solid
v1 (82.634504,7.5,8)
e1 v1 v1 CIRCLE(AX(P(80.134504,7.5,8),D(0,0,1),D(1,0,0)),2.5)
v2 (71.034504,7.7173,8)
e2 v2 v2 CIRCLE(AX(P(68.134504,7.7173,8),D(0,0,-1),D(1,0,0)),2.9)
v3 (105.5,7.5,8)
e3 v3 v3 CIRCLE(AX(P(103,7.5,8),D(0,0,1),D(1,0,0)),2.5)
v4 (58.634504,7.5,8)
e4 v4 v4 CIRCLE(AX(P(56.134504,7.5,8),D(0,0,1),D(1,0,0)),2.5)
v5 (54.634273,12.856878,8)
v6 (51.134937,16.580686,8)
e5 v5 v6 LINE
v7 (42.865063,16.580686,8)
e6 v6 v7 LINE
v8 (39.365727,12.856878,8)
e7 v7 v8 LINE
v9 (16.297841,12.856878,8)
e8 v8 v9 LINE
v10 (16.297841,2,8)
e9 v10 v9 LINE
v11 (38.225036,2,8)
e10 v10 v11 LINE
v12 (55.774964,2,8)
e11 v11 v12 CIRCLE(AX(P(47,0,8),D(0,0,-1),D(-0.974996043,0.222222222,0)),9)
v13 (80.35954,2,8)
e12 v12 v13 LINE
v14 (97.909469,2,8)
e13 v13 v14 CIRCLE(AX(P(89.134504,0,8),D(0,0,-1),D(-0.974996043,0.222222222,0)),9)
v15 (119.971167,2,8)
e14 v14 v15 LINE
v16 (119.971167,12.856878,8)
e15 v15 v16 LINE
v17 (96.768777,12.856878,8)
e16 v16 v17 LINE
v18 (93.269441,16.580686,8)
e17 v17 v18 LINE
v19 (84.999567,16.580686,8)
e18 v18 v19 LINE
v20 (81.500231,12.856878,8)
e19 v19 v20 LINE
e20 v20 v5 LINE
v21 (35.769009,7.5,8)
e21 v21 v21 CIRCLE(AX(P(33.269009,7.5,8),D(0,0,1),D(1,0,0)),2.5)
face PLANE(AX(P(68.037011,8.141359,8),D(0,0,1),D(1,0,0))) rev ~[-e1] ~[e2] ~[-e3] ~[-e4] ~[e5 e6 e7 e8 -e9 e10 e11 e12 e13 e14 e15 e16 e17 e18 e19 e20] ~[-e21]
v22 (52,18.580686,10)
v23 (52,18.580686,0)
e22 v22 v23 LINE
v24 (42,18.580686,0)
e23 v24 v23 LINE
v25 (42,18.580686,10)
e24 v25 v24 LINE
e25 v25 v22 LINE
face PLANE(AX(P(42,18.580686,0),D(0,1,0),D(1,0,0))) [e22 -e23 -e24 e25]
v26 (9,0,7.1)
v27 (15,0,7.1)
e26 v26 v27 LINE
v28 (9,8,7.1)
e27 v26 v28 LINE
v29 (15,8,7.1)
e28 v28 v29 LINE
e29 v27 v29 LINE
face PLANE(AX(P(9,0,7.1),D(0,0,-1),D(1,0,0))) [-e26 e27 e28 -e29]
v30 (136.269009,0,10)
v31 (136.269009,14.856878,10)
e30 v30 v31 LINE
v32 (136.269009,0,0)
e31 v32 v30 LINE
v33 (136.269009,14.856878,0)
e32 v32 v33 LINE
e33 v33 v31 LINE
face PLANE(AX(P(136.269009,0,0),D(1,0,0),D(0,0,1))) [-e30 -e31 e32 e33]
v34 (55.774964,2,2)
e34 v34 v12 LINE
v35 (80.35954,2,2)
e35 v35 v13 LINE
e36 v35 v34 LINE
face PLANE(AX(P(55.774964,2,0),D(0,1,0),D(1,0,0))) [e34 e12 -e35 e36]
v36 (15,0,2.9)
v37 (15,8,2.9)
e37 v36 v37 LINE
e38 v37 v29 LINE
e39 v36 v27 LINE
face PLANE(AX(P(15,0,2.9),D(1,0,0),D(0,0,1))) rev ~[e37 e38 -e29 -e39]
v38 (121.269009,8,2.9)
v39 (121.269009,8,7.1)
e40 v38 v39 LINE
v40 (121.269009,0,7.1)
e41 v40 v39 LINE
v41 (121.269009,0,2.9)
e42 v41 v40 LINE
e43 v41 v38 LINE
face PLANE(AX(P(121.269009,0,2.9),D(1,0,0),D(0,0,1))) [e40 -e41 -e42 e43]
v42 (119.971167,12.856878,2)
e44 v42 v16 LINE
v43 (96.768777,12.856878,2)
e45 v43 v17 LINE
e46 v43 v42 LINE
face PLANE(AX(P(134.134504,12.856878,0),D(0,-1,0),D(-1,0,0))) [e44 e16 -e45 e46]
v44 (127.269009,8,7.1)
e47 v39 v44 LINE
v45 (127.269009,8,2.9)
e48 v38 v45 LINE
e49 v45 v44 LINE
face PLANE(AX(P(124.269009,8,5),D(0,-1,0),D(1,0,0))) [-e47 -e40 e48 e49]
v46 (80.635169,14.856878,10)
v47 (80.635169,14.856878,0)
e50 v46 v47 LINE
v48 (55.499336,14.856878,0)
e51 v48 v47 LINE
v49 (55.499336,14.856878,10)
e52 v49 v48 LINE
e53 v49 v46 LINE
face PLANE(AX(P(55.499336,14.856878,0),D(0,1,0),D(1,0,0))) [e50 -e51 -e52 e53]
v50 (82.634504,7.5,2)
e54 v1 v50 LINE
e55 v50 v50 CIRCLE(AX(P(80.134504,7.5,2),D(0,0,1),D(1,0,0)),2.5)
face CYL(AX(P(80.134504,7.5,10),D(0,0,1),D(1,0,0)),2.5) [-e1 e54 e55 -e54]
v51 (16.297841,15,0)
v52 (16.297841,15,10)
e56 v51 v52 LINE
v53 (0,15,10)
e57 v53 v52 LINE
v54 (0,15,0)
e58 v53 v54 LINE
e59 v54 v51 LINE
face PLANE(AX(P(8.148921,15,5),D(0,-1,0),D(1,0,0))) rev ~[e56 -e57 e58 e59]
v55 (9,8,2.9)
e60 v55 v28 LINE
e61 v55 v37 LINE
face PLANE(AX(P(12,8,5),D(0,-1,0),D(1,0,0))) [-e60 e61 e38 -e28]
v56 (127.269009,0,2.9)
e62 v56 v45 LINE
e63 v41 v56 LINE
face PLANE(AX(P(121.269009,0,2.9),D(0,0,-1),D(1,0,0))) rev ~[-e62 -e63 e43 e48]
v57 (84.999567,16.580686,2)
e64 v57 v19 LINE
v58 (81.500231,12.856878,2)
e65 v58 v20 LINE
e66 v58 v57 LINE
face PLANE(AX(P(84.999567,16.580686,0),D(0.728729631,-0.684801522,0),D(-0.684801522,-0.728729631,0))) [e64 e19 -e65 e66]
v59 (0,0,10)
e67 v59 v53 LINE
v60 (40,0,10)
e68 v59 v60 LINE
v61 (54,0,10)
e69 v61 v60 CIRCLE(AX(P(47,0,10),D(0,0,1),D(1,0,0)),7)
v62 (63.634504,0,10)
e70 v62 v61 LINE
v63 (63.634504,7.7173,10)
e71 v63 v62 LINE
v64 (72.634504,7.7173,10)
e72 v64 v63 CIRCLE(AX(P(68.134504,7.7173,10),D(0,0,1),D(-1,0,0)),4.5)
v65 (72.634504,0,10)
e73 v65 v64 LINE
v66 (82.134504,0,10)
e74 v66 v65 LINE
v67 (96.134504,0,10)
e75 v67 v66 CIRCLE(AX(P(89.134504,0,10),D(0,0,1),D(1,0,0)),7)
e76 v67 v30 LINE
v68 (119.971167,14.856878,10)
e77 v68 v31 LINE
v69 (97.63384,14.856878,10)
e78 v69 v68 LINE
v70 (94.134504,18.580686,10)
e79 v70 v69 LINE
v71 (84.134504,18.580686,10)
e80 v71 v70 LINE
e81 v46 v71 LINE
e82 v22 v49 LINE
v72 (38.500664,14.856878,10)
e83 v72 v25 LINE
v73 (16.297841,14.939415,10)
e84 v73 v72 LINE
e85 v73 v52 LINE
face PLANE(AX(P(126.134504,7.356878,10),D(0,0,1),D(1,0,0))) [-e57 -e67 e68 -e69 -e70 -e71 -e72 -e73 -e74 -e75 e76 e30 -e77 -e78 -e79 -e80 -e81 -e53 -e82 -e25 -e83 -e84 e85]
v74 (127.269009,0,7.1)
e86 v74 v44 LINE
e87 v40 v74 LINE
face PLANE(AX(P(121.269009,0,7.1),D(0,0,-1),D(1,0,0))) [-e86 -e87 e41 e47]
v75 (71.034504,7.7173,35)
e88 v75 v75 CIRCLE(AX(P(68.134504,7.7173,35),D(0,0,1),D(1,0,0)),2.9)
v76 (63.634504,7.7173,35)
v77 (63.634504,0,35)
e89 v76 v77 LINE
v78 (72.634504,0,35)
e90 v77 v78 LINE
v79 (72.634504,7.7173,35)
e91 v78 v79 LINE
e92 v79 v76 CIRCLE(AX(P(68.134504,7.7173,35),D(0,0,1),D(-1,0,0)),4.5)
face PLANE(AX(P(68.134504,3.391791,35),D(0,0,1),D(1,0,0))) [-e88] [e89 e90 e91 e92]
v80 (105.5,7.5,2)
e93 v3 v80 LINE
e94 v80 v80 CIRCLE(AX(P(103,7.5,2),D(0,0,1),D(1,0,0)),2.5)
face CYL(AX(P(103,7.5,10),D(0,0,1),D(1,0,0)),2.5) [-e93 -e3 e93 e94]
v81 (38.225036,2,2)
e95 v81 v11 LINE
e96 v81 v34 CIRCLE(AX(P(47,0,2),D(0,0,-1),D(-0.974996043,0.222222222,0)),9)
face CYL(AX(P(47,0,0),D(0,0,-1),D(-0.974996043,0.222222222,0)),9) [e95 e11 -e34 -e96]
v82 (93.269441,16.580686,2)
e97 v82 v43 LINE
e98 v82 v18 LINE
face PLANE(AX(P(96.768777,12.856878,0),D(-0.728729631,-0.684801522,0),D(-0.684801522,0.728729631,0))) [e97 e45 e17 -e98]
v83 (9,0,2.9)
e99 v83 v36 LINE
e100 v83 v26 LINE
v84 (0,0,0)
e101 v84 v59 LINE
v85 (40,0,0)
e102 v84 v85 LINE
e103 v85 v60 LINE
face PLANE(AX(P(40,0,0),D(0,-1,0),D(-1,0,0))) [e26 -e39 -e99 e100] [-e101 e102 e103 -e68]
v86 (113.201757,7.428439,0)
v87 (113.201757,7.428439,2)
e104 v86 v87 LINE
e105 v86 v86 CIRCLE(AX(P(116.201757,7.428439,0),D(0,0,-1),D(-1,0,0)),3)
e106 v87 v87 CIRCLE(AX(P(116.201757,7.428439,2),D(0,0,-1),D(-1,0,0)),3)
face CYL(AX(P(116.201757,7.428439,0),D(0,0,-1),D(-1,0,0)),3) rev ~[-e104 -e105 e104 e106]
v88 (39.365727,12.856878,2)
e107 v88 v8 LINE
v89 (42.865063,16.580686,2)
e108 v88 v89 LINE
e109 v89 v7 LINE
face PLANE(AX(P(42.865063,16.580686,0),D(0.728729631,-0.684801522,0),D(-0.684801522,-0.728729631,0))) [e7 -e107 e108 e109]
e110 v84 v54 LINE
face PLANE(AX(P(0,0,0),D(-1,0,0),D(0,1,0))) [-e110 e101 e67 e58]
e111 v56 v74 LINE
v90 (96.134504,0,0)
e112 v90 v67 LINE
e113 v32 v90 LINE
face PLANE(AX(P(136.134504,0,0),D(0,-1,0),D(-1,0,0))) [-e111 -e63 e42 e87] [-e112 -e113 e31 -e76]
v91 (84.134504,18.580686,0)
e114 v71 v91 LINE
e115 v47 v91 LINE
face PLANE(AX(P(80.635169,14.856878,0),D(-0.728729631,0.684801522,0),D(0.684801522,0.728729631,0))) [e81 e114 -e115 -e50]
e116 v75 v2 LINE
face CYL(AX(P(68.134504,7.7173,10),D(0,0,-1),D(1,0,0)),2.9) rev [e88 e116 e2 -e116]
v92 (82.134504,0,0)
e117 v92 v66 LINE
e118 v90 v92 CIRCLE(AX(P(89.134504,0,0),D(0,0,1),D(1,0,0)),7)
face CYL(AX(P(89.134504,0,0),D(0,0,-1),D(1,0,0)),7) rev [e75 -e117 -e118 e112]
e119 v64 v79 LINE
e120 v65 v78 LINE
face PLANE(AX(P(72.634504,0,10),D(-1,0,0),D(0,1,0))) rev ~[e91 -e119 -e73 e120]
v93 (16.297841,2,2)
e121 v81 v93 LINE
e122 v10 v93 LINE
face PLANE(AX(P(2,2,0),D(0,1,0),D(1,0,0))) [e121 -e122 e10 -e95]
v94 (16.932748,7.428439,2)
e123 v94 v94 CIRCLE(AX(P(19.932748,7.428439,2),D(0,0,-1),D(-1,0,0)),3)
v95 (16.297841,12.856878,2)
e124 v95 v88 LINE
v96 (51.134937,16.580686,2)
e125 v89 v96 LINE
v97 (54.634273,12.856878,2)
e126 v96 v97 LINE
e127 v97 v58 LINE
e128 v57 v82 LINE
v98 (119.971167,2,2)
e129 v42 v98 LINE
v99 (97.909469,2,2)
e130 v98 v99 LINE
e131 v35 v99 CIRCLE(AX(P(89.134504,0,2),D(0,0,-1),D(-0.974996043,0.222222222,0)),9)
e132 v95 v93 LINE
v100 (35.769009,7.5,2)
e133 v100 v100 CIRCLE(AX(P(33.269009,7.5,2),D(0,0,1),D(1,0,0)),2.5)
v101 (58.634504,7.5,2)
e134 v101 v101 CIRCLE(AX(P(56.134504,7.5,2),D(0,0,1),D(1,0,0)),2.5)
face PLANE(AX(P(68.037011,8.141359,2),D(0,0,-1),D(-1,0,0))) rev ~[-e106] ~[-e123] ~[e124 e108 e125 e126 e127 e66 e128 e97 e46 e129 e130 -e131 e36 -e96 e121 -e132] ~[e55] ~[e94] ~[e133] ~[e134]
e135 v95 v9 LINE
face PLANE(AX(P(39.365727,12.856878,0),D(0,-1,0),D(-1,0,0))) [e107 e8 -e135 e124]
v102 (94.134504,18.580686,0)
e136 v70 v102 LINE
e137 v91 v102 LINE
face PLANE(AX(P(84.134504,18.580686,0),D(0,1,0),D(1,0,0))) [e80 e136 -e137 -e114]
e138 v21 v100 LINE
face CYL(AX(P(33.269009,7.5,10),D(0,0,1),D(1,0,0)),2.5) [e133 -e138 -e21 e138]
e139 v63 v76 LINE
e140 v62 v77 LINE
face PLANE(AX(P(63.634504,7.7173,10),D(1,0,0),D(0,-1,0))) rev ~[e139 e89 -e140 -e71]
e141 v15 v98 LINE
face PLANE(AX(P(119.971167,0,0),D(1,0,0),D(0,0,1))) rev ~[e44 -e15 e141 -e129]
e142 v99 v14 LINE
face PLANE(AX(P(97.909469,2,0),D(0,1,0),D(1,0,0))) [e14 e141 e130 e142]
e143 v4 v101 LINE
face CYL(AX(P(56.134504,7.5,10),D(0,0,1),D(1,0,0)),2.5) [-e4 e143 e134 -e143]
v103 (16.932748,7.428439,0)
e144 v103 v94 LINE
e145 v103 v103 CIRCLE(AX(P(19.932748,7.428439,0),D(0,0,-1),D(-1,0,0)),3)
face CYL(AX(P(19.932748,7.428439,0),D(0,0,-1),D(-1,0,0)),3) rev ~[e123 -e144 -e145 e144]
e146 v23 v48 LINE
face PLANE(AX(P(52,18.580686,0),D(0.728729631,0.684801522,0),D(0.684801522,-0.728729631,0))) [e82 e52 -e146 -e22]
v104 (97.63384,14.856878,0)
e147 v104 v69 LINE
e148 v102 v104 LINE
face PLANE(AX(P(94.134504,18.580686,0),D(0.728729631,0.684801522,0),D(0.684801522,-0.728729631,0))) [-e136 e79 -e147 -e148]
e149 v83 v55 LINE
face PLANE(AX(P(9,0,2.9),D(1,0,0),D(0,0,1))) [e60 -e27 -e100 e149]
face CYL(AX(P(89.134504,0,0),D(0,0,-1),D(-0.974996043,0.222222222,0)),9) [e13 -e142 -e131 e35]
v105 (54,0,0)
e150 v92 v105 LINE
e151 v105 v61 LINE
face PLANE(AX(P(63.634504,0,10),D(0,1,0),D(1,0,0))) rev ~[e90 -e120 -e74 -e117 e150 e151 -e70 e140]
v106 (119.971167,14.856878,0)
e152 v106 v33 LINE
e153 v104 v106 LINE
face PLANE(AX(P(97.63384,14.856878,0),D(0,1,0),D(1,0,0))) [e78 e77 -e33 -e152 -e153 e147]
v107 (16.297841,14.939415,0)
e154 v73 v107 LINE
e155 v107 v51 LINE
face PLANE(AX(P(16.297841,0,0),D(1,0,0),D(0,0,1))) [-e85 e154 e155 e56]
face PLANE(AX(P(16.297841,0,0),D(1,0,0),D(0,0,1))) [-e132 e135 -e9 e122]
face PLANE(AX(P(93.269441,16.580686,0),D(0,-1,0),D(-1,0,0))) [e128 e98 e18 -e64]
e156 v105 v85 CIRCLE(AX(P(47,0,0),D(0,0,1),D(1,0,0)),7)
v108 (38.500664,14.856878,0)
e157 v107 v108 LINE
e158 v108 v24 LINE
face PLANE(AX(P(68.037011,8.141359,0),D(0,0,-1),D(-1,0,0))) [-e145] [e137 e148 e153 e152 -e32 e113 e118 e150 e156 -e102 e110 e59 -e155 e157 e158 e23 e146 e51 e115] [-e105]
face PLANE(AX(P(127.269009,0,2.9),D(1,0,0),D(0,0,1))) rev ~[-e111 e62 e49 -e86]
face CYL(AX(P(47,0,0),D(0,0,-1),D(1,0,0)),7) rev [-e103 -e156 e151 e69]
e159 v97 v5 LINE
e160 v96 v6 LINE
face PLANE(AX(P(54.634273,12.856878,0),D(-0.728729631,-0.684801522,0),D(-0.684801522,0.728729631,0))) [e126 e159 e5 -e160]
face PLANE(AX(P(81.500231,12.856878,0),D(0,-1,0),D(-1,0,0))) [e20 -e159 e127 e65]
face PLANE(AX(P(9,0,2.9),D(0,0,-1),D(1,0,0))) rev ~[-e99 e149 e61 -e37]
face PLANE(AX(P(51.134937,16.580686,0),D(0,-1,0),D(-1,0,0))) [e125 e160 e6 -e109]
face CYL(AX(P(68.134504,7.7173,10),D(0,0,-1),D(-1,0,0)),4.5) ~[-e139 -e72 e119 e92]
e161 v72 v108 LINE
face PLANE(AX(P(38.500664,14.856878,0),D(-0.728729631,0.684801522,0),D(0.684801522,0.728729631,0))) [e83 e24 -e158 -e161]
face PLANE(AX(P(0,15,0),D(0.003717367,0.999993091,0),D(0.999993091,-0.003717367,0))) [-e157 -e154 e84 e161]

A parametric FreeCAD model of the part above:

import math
import FreeCAD as App
import Part
import Sketcher
from FreeCAD import Vector
Q = App.Units.Quantity

doc = App.newDocument("Part")
body = doc.addObject("PartDesign::Body", "Body")

# Sketch on XY plane
sketch1 = body.newObject("Sketcher::SketchObject", "Sketch")
sketch1.AttachmentSupport = (doc.getObject("XY_Plane"), [""])
sketch1.MapMode = "FlatFace"
sketch1.addGeometry([
    Part.LineSegment(Vector(0, 15, 0), Vector(0, 0, 0)),  # 0
    Part.LineSegment(Vector(0, 0, 0), Vector(40, 0, 0)),  # 1
    Part.ArcOfCircle(Part.Circle(Vector(47, 0, 0), Vector(0, 0, 1), 7), math.radians(0), math.radians(180)),  # 2
    Part.LineSegment(Vector(54, 0, 0), Vector(82, 0, 0)),  # 3
    Part.ArcOfCircle(Part.Circle(Vector(89, 0, 0), Vector(0, 0, 1), 7), math.radians(0), math.radians(180)),  # 4
    Part.LineSegment(Vector(96, 0, 0), Vector(136, 0, 0)),  # 5
    Part.LineSegment(Vector(136, 0, 0), Vector(136, 15, 0)),  # 6
    Part.LineSegment(Vector(136, 15, 0), Vector(98, 15, 0)),  # 7
    Part.LineSegment(Vector(98, 15, 0), Vector(94, 19, 0)),  # 8
    Part.LineSegment(Vector(94, 19, 0), Vector(84, 19, 0)),  # 9
    Part.LineSegment(Vector(84, 19, 0), Vector(81, 15, 0)),  # 10
    Part.LineSegment(Vector(81, 15, 0), Vector(55, 15, 0)),  # 11
    Part.LineSegment(Vector(55, 15, 0), Vector(52, 19, 0)),  # 12
    Part.LineSegment(Vector(52, 19, 0), Vector(42, 19, 0)),  # 13
    Part.LineSegment(Vector(42, 19, 0), Vector(39, 15, 0)),  # 14
    Part.LineSegment(Vector(39, 15, 0), Vector(0, 15, 0)),  # 15
    Part.LineSegment(Vector(82, 13, 0), Vector(85, 17, 0)),  # 16
    Part.LineSegment(Vector(85, 17, 0), Vector(93, 17, 0)),  # 17
    Part.LineSegment(Vector(93, 17, 0), Vector(97, 13, 0)),  # 18
    Part.LineSegment(Vector(97, 13, 0), Vector(134, 13, 0)),  # 19
    Part.LineSegment(Vector(134, 13, 0), Vector(134, 2, 0)),  # 20
    Part.LineSegment(Vector(134, 2, 0), Vector(98, 2, 0)),  # 21
    Part.ArcOfCircle(Part.Circle(Vector(89, 0, 0), Vector(0, 0, 1), 9), math.radians(13), math.radians(167)),  # 22
    Part.LineSegment(Vector(80, 2, 0), Vector(56, 2, 0)),  # 23
    Part.ArcOfCircle(Part.Circle(Vector(47, 0, 0), Vector(0, 0, 1), 9), math.radians(13), math.radians(167)),  # 24
    Part.LineSegment(Vector(38, 2, 0), Vector(2, 2, 0)),  # 25
    Part.LineSegment(Vector(2, 2, 0), Vector(2, 13, 0)),  # 26
    Part.LineSegment(Vector(2, 13, 0), Vector(39, 13, 0)),  # 27
    Part.LineSegment(Vector(39, 13, 0), Vector(43, 17, 0)),  # 28
    Part.LineSegment(Vector(43, 17, 0), Vector(51, 17, 0)),  # 29
    Part.LineSegment(Vector(51, 17, 0), Vector(55, 13, 0)),  # 30
    Part.LineSegment(Vector(55, 13, 0), Vector(82, 13, 0)),  # 31
], False)
sketch1.addConstraint([
    Sketcher.Constraint("Coincident", 0, 2, 1, 1),
    Sketcher.Constraint("Coincident", 1, 2, 2, 2),
    Sketcher.Constraint("Coincident", 2, 1, 3, 1),
    Sketcher.Constraint("Coincident", 3, 2, 4, 2),
    Sketcher.Constraint("Coincident", 4, 1, 5, 1),
    Sketcher.Constraint("Coincident", 5, 2, 6, 1),
    Sketcher.Constraint("Coincident", 6, 2, 7, 1),
    Sketcher.Constraint("Coincident", 7, 2, 8, 1),
    Sketcher.Constraint("Coincident", 8, 2, 9, 1),
    Sketcher.Constraint("Coincident", 9, 2, 10, 1),
    Sketcher.Constraint("Coincident", 10, 2, 11, 1),
    Sketcher.Constraint("Coincident", 11, 2, 12, 1),
    Sketcher.Constraint("Coincident", 12, 2, 13, 1),
    Sketcher.Constraint("Coincident", 13, 2, 14, 1),
    Sketcher.Constraint("Coincident", 14, 2, 15, 1),
    Sketcher.Constraint("Coincident", 15, 2, 0, 1),
    Sketcher.Constraint("Coincident", 16, 2, 17, 1),
    Sketcher.Constraint("Coincident", 17, 2, 18, 1),
    Sketcher.Constraint("Coincident", 18, 2, 19, 1),
    Sketcher.Constraint("Coincident", 19, 2, 20, 1),
    Sketcher.Constraint("Coincident", 20, 2, 21, 1),
    Sketcher.Constraint("Coincident", 21, 2, 22, 1),
    Sketcher.Constraint("Coincident", 22, 2, 23, 1),
    Sketcher.Constraint("Coincident", 23, 2, 24, 1),
    Sketcher.Constraint("Coincident", 24, 2, 25, 1),
    Sketcher.Constraint("Coincident", 25, 2, 26, 1),
    Sketcher.Constraint("Coincident", 26, 2, 27, 1),
    Sketcher.Constraint("Coincident", 27, 2, 28, 1),
    Sketcher.Constraint("Coincident", 28, 2, 29, 1),
    Sketcher.Constraint("Coincident", 29, 2, 30, 1),
    Sketcher.Constraint("Coincident", 30, 2, 31, 1),
    Sketcher.Constraint("Coincident", 31, 2, 16, 1),
    Sketcher.Constraint("Vertical", 0),
    Sketcher.Constraint("Horizontal", 1),
    Sketcher.Constraint("Horizontal", 3),
    Sketcher.Constraint("Horizontal", 5),
    Sketcher.Constraint("Vertical", 6),
    Sketcher.Constraint("Horizontal", 7),
    Sketcher.Constraint("Horizontal", 9),
    Sketcher.Constraint("Horizontal", 11),
    Sketcher.Constraint("Horizontal", 13),
    Sketcher.Constraint("Horizontal", 17),
    Sketcher.Constraint("Horizontal", 19),
    Sketcher.Constraint("Vertical", 20),
    Sketcher.Constraint("Horizontal", 21),
    Sketcher.Constraint("Horizontal", 23),
    Sketcher.Constraint("Horizontal", 25),
    Sketcher.Constraint("Vertical", 26),
    Sketcher.Constraint("Horizontal", 27),
    Sketcher.Constraint("Horizontal", 29),
    Sketcher.Constraint("Horizontal", 31),
    Sketcher.Constraint("Coincident", 0, 2, -1, 1),
    Sketcher.Constraint("Coincident", 22, 3, 4, 3),
    Sketcher.Constraint("Coincident", 24, 3, 2, 3),
    Sketcher.Constraint("Equal", 2, 4),
    Sketcher.Constraint("Equal", 22, 24),
    Sketcher.Constraint("PointOnObject", 2, 3, -1),
    Sketcher.Constraint("PointOnObject", 4, 3, -1),
    Sketcher.Constraint("PointOnObject", 2, 1, -1),
    Sketcher.Constraint("PointOnObject", 4, 1, -1),
    Sketcher.Constraint("Parallel", 8, 12),
    Sketcher.Constraint("Parallel", 10, 14),
    Sketcher.Constraint("Parallel", 14, 16),
    Sketcher.Constraint("Parallel", 12, 18),
    Sketcher.Constraint("Parallel", 16, 28),
    Sketcher.Constraint("Parallel", 18, 30),
    Sketcher.Constraint("Horizontal", 7, 2, 10, 2),
    Sketcher.Constraint("Horizontal", 9, 2, 12, 2),
    Sketcher.Constraint("Horizontal", 11, 2, 14, 2),
    Sketcher.Constraint("Horizontal", 21, 2, 22, 2),
    Sketcher.Constraint("Horizontal", 23, 2, 24, 2),
    Sketcher.Constraint("Horizontal", 19, 2, 26, 2),
    Sketcher.Constraint("Horizontal", 17, 2, 28, 2),
    Sketcher.Constraint("Horizontal", 27, 2, 30, 2),
    Sketcher.Constraint("Equal", 1, 5),
    Sketcher.Constraint("Equal", 9, 13),
    Sketcher.Constraint("Equal", 21, 25),
    Sketcher.Constraint("Equal", 19, 27),
    Sketcher.Constraint("Equal", 17, 29),
    Sketcher.Constraint("Equal", 8, 10),
    Sketcher.Constraint("Equal", 14, 16),
    Sketcher.Constraint("Radius", 2, 7.0),
    Sketcher.Constraint("Radius", 22, 9.0),
    Sketcher.Constraint("DistanceX", 1, 1, 1, 2, 40.0),
    Sketcher.Constraint("DistanceX", 9, 2, 9, 1, 10.0),
    Sketcher.Constraint("DistanceY", 0, 2, 0, 1, 15.0),
    Sketcher.Constraint("DistanceX", -1, 1, 12, 2, 52.0),
    Sketcher.Constraint("DistanceY", -1, 1, 20, 2, 2.0),
    Sketcher.Constraint("DistanceX", -1, 1, 25, 2, 2.0),
    Sketcher.Constraint("DistanceX", 8, 2, 4, 1, 2.0),
    Sketcher.Constraint("DistanceY", 16, 2, 9, 2, 2.0),
    Sketcher.Constraint("Angle", 8, Q("133.22 deg")),
    Sketcher.Constraint("Distance", 8, 5.11),
    Sketcher.Constraint("DistanceX", 31, 1, 31, 2, 26.865959),
    Sketcher.Constraint("DistanceX", 10, 2, 16, 2, 4.364399),
    Sketcher.Constraint("DistanceX", 17, 2, 7, 2, 4.364399),
    Sketcher.Constraint("DistanceY", 6, 1, 6, 2, 14.856878),
])
pad1 = body.newObject("PartDesign::Pad", "Pad")
pad1.Profile = sketch1
pad1.Length = 10

# Sketch on XY plane
sketch2 = body.newObject("Sketcher::SketchObject", "Sketch001")
sketch2.AttachmentSupport = (doc.getObject("XY_Plane"), [""])
sketch2.MapMode = "FlatFace"
sketch2.AttachmentOffset = App.Placement(Vector(0, 0, 8), App.Rotation())
sketch2.addGeometry([
    Part.LineSegment(Vector(136, 0, 0), Vector(136, 15, 0)),  # 0
    Part.LineSegment(Vector(136, 15, 0), Vector(98, 15, 0)),  # 1
    Part.LineSegment(Vector(98, 15, 0), Vector(94, 19, 0)),  # 2
    Part.LineSegment(Vector(94, 19, 0), Vector(84, 19, 0)),  # 3
    Part.LineSegment(Vector(84, 19, 0), Vector(81, 15, 0)),  # 4
    Part.LineSegment(Vector(81, 15, 0), Vector(55, 15, 0)),  # 5
    Part.LineSegment(Vector(55, 15, 0), Vector(52, 19, 0)),  # 6
    Part.LineSegment(Vector(52, 19, 0), Vector(42, 19, 0)),  # 7
    Part.LineSegment(Vector(42, 19, 0), Vector(39, 15, 0)),  # 8
    Part.LineSegment(Vector(39, 15, 0), Vector(0, 15, 0)),  # 9
    Part.LineSegment(Vector(0, 15, 0), Vector(0, 0, 0)),  # 10
    Part.LineSegment(Vector(0, 0, 0), Vector(40, 0, 0)),  # 11
    Part.ArcOfCircle(Part.Circle(Vector(47, 0, 0), Vector(0, 0, 1), 7), math.radians(0), math.radians(180)),  # 12
    Part.LineSegment(Vector(54, 0, 0), Vector(82, 0, 0)),  # 13
    Part.ArcOfCircle(Part.Circle(Vector(89, 0, 0), Vector(0, 0, 1), 7), math.radians(0), math.radians(180)),  # 14
    Part.LineSegment(Vector(96, 0, 0), Vector(136, 0, 0)),  # 15
], False)
sketch2.addConstraint([
    Sketcher.Constraint("Coincident", 0, 2, 1, 1),
    Sketcher.Constraint("Coincident", 1, 2, 2, 1),
    Sketcher.Constraint("Coincident", 2, 2, 3, 1),
    Sketcher.Constraint("Coincident", 3, 2, 4, 1),
    Sketcher.Constraint("Coincident", 4, 2, 5, 1),
    Sketcher.Constraint("Coincident", 5, 2, 6, 1),
    Sketcher.Constraint("Coincident", 6, 2, 7, 1),
    Sketcher.Constraint("Coincident", 7, 2, 8, 1),
    Sketcher.Constraint("Coincident", 8, 2, 9, 1),
    Sketcher.Constraint("Coincident", 9, 2, 10, 1),
    Sketcher.Constraint("Coincident", 10, 2, 11, 1),
    Sketcher.Constraint("Coincident", 11, 2, 12, 2),
    Sketcher.Constraint("Coincident", 12, 1, 13, 1),
    Sketcher.Constraint("Coincident", 13, 2, 14, 2),
    Sketcher.Constraint("Coincident", 14, 1, 15, 1),
    Sketcher.Constraint("Coincident", 15, 2, 0, 1),
    Sketcher.Constraint("Vertical", 0),
    Sketcher.Constraint("Horizontal", 1),
    Sketcher.Constraint("Horizontal", 3),
    Sketcher.Constraint("Horizontal", 5),
    Sketcher.Constraint("Horizontal", 7),
    Sketcher.Constraint("Vertical", 10),
    Sketcher.Constraint("Horizontal", 11),
    Sketcher.Constraint("Horizontal", 13),
    Sketcher.Constraint("Horizontal", 15),
    Sketcher.Constraint("Coincident", 10, 2, -1, 1),
    Sketcher.Constraint("Equal", 12, 14),
    Sketcher.Constraint("PointOnObject", 12, 3, -1),
    Sketcher.Constraint("PointOnObject", 14, 3, -1),
    Sketcher.Constraint("PointOnObject", 12, 1, -1),
    Sketcher.Constraint("PointOnObject", 14, 1, -1),
    Sketcher.Constraint("Parallel", 2, 6),
    Sketcher.Constraint("Parallel", 4, 8),
    Sketcher.Constraint("Horizontal", 1, 2, 4, 2),
    Sketcher.Constraint("Horizontal", 3, 2, 6, 2),
    Sketcher.Constraint("Horizontal", 5, 2, 8, 2),
    Sketcher.Constraint("Equal", 3, 7),
    Sketcher.Constraint("Equal", 11, 15),
    Sketcher.Constraint("Equal", 2, 4),
    Sketcher.Constraint("Radius", 12, 7.0),
    Sketcher.Constraint("DistanceX", 3, 2, 3, 1, 10.0),
    Sketcher.Constraint("DistanceX", 11, 1, 11, 2, 40.0),
    Sketcher.Constraint("DistanceY", 10, 2, 10, 1, 15.0),
    Sketcher.Constraint("DistanceX", -1, 1, 6, 2, 52.0),
    Sketcher.Constraint("DistanceX", 14, 3, 2, 2, 5.0),
    Sketcher.Constraint("Angle", 2, Q("133.22 deg")),
    Sketcher.Constraint("Distance", 2, 5.11),
    Sketcher.Constraint("DistanceX", 5, 2, 5, 1, 25.135833),
    Sketcher.Constraint("DistanceY", 0, 1, 0, 2, 14.856878),
])
pad2 = body.newObject("PartDesign::Pad", "Pad001")
pad2.Profile = sketch2
pad2.Length = 2

# Sketch on XY plane
sketch3 = body.newObject("Sketcher::SketchObject", "Sketch002")
sketch3.AttachmentSupport = (doc.getObject("XY_Plane"), [""])
sketch3.MapMode = "FlatFace"
sketch3.addGeometry([
    Part.LineSegment(Vector(0, 15, 0), Vector(39, 15, 0)),  # 0
    Part.LineSegment(Vector(39, 15, 0), Vector(42, 19, 0)),  # 1
    Part.LineSegment(Vector(42, 19, 0), Vector(52, 19, 0)),  # 2
    Part.LineSegment(Vector(52, 19, 0), Vector(55, 15, 0)),  # 3
    Part.LineSegment(Vector(55, 15, 0), Vector(81, 15, 0)),  # 4
    Part.LineSegment(Vector(81, 15, 0), Vector(84, 19, 0)),  # 5
    Part.LineSegment(Vector(84, 19, 0), Vector(94, 19, 0)),  # 6
    Part.LineSegment(Vector(94, 19, 0), Vector(98, 15, 0)),  # 7
    Part.LineSegment(Vector(98, 15, 0), Vector(136, 15, 0)),  # 8
    Part.LineSegment(Vector(136, 15, 0), Vector(136, 0, 0)),  # 9
    Part.LineSegment(Vector(136, 0, 0), Vector(96, 0, 0)),  # 10
    Part.ArcOfCircle(Part.Circle(Vector(89, 0, 0), Vector(0, 0, 1), 7), math.radians(0), math.radians(180)),  # 11
    Part.LineSegment(Vector(82, 0, 0), Vector(54, 0, 0)),  # 12
    Part.ArcOfCircle(Part.Circle(Vector(47, 0, 0), Vector(0, 0, 1), 7), math.radians(0), math.radians(180)),  # 13
    Part.LineSegment(Vector(40, 0, 0), Vector(0, 0, 0)),  # 14
    Part.LineSegment(Vector(0, 0, 0), Vector(0, 15, 0)),  # 15
], False)
sketch3.addConstraint([
    Sketcher.Constraint("Coincident", 0, 2, 1, 1),
    Sketcher.Constraint("Coincident", 1, 2, 2, 1),
    Sketcher.Constraint("Coincident", 2, 2, 3, 1),
    Sketcher.Constraint("Coincident", 3, 2, 4, 1),
    Sketcher.Constraint("Coincident", 4, 2, 5, 1),
    Sketcher.Constraint("Coincident", 5, 2, 6, 1),
    Sketcher.Constraint("Coincident", 6, 2, 7, 1),
    Sketcher.Constraint("Coincident", 7, 2, 8, 1),
    Sketcher.Constraint("Coincident", 8, 2, 9, 1),
    Sketcher.Constraint("Coincident", 9, 2, 10, 1),
    Sketcher.Constraint("Coincident", 10, 2, 11, 1),
    Sketcher.Constraint("Coincident", 11, 2, 12, 1),
    Sketcher.Constraint("Coincident", 12, 2, 13, 1),
    Sketcher.Constraint("Coincident", 13, 2, 14, 1),
    Sketcher.Constraint("Coincident", 14, 2, 15, 1),
    Sketcher.Constraint("Coincident", 15, 2, 0, 1),
    Sketcher.Constraint("Horizontal", 2),
    Sketcher.Constraint("Horizontal", 4),
    Sketcher.Constraint("Horizontal", 6),
    Sketcher.Constraint("Horizontal", 8),
    Sketcher.Constraint("Vertical", 9),
    Sketcher.Constraint("Horizontal", 10),
    Sketcher.Constraint("Horizontal", 12),
    Sketcher.Constraint("Horizontal", 14),
    Sketcher.Constraint("Vertical", 15),
    Sketcher.Constraint("Coincident", 14, 2, -1, 1),
    Sketcher.Constraint("Equal", 11, 13),
    Sketcher.Constraint("PointOnObject", 11, 3, -1),
    Sketcher.Constraint("PointOnObject", 13, 3, -1),
    Sketcher.Constraint("PointOnObject", 9, 2, -1),
    Sketcher.Constraint("PointOnObject", 11, 2, -1),
    Sketcher.Constraint("Parallel", 1, 5),
    Sketcher.Constraint("Parallel", 3, 7),
    Sketcher.Constraint("Horizontal", 0, 2, 3, 2),
    Sketcher.Constraint("Horizontal", 2, 2, 5, 2),
    Sketcher.Constraint("Horizontal", 4, 2, 7, 2),
    Sketcher.Constraint("Equal", 2, 6),
    Sketcher.Constraint("Equal", 10, 14),
    Sketcher.Constraint("Equal", 1, 3),
    Sketcher.Constraint("Radius", 11, 7.0),
    Sketcher.Constraint("DistanceX", 2, 1, 2, 2, 10.0),
    Sketcher.Constraint("DistanceX", 10, 2, 10, 1, 40.0),
    Sketcher.Constraint("DistanceY", 15, 1, 15, 2, 15.0),
    Sketcher.Constraint("DistanceX", -1, 1, 1, 2, 42.0),
    Sketcher.Constraint("DistanceX", 5, 2, 11, 3, 5.0),
    Sketcher.Constraint("Angle", 1, Q("46.78 deg")),
    Sketcher.Constraint("Distance", 1, 5.11),
    Sketcher.Constraint("DistanceX", 4, 1, 4, 2, 25.135833),
    Sketcher.Constraint("DistanceY", 9, 2, 9, 1, 14.856878),
])
pad3 = body.newObject("PartDesign::Pad", "Pad002")
pad3.Profile = sketch3
pad3.Length = 2

# Sketch on XY plane
sketch4 = body.newObject("Sketcher::SketchObject", "Sketch003")
sketch4.AttachmentSupport = (doc.getObject("XY_Plane"), [""])
sketch4.MapMode = "FlatFace"
sketch4.AttachmentOffset = App.Placement(Vector(0, 0, 10), App.Rotation())
sketch4.addGeometry([
    Part.Circle(Vector(68.1, 7.7, 0), Vector(0, 0, 1), 4.5),
    Part.Circle(Vector(68.1, 7.7, 0), Vector(0, 0, 1), 2.9),
], False)
sketch4.addConstraint([
    Sketcher.Constraint("Coincident", 1, 3, 0, 3),
    Sketcher.Constraint("Diameter", 0, 9.0),
    Sketcher.Constraint("Diameter", 1, 5.8),
    Sketcher.Constraint("DistanceY", -1, 1, 0, 3, 7.7173),
    Sketcher.Constraint("DistanceX", -1, 1, 0, 3, 68.134504),
])
pad4 = body.newObject("PartDesign::Pad", "Pad003")
pad4.Profile = sketch4
pad4.Length = 25

# Sketch on XY plane
sketch5 = body.newObject("Sketcher::SketchObject", "Sketch004")
sketch5.AttachmentSupport = (doc.getObject("XY_Plane"), [""])
sketch5.MapMode = "FlatFace"
sketch5.AttachmentOffset = App.Placement(Vector(0, 0, 2), App.Rotation())
sketch5.addGeometry(Part.Circle(Vector(68.1, 7.7, 0), Vector(0, 0, 1), 2.9), False)
sketch5.addConstraint([
    Sketcher.Constraint("Diameter", 0, 5.8),
    Sketcher.Constraint("DistanceY", -1, 1, 0, 3, 7.7173),
    Sketcher.Constraint("DistanceX", -1, 1, 0, 3, 68.134504),
])
pocket1 = body.newObject("PartDesign::Pocket", "Pocket")
pocket1.Profile = sketch5
pocket1.Length = 8
pocket1.Reversed = True

# Sketch on XY plane
sketch6 = body.newObject("Sketcher::SketchObject", "Sketch005")
sketch6.AttachmentSupport = (doc.getObject("XY_Plane"), [""])
sketch6.MapMode = "FlatFace"
sketch6.AttachmentOffset = App.Placement(Vector(0, 0, 10), App.Rotation())
sketch6.addGeometry([
    Part.Circle(Vector(126.1, 7.4, 0), Vector(0, 0, 1), 2.5),  # 0
    Part.Circle(Vector(103, 7.5, 0), Vector(0, 0, 1), 2.5),  # 1
    Part.Circle(Vector(80.1, 7.5, 0), Vector(0, 0, 1), 2.5),  # 2
    Part.Circle(Vector(10.1, 7.4, 0), Vector(0, 0, 1), 2.5),  # 3
    Part.Circle(Vector(33.3, 7.5, 0), Vector(0, 0, 1), 2.5),  # 4
    Part.Circle(Vector(56.1, 7.5, 0), Vector(0, 0, 1), 2.5),  # 5
], False)
sketch6.addConstraint([
    Sketcher.Constraint("Equal", 0, 1),
    Sketcher.Constraint("Equal", 1, 2),
    Sketcher.Constraint("Equal", 2, 3),
    Sketcher.Constraint("Equal", 3, 4),
    Sketcher.Constraint("Equal", 4, 5),
    Sketcher.Constraint("Horizontal", 1, 3, 2, 3),
    Sketcher.Constraint("Horizontal", 0, 3, 3, 3),
    Sketcher.Constraint("Horizontal", 2, 3, 4, 3),
    Sketcher.Constraint("Horizontal", 4, 3, 5, 3),
    Sketcher.Constraint("Diameter", 0, 5.0),
    Sketcher.Constraint("DistanceX", -1, 1, 1, 3, 103.0),
    Sketcher.Constraint("DistanceX", 2, 3, 0, 3, 46.0),
    Sketcher.Constraint("DistanceX", 3, 3, 2, 3, 70.0),
    Sketcher.Constraint("DistanceX", 5, 3, 2, 3, 24.0),
    Sketcher.Constraint("DistanceY", -1, 1, 1, 3, 7.5),
    Sketcher.Constraint("DistanceX", -1, 1, 4, 3, 33.269009),
    Sketcher.Constraint("DistanceX", -1, 1, 0, 3, 126.134504),
    Sketcher.Constraint("DistanceY", -1, 1, 0, 3, 7.356878),
])
pad5 = body.newObject("PartDesign::Pad", "Pad004")
pad5.Profile = sketch6
pad5.Length = 10
pad5.Reversed = True

# Sketch on XY plane
sketch7 = body.newObject("Sketcher::SketchObject", "Sketch006")
sketch7.AttachmentSupport = (doc.getObject("XY_Plane"), [""])
sketch7.MapMode = "FlatFace"
sketch7.AttachmentOffset = App.Placement(Vector(0, 0, 10), App.Rotation())
sketch7.addGeometry([
    Part.LineSegment(Vector(63.6, 7.7, 0), Vector(63.6, 0, 0)),
    Part.LineSegment(Vector(63.6, 0, 0), Vector(72.6, 0, 0)),
    Part.LineSegment(Vector(72.6, 0, 0), Vector(72.6, 7.7, 0)),
    Part.ArcOfCircle(Part.Circle(Vector(68.1, 7.7, 0), Vector(0, 0, 1), 4.5), math.radians(180), math.radians(360)),
], False)
sketch7.addConstraint([
    Sketcher.Constraint("Coincident", 0, 2, 1, 1),
    Sketcher.Constraint("Coincident", 1, 2, 2, 1),
    Sketcher.Constraint("Tangent", 2, 2, 3, 2),
    Sketcher.Constraint("Tangent", 3, 1, 0, 1),
    Sketcher.Constraint("Vertical", 0),
    Sketcher.Constraint("Horizontal", 1),
    Sketcher.Constraint("Vertical", 2),
    Sketcher.Constraint("PointOnObject", 0, 2, -1),
    Sketcher.Constraint("Radius", 3, 4.5),
    Sketcher.Constraint("DistanceY", 0, 2, 0, 1, 7.7173),
    Sketcher.Constraint("DistanceX", -1, 1, 3, 3, 68.134504),
])
pad6 = body.newObject("PartDesign::Pad", "Pad005")
pad6.Profile = sketch7
pad6.Length = 25

# Sketch on XZ plane
sketch8 = body.newObject("Sketcher::SketchObject", "Sketch007")
sketch8.AttachmentSupport = (doc.getObject("XZ_Plane"), [""])
sketch8.MapMode = "FlatFace"
sketch8.addGeometry([
    Part.LineSegment(Vector(0, 10, 0), Vector(0, 0, 0)),  # 0
    Part.LineSegment(Vector(0, 0, 0), Vector(16, 0, 0)),  # 1
    Part.LineSegment(Vector(16, 0, 0), Vector(16, 10, 0)),  # 2
    Part.LineSegment(Vector(16, 10, 0), Vector(0, 10, 0)),  # 3
    Part.LineSegment(Vector(120, 10, 0), Vector(120, 0, 0)),  # 4
    Part.LineSegment(Vector(120, 0, 0), Vector(136, 0, 0)),  # 5
    Part.LineSegment(Vector(136, 0, 0), Vector(136, 10, 0)),  # 6
    Part.LineSegment(Vector(136, 10, 0), Vector(120, 10, 0)),  # 7
], False)
sketch8.addConstraint([
    Sketcher.Constraint("Coincident", 0, 2, 1, 1),
    Sketcher.Constraint("Coincident", 1, 2, 2, 1),
    Sketcher.Constraint("Coincident", 2, 2, 3, 1),
    Sketcher.Constraint("Coincident", 3, 2, 0, 1),
    Sketcher.Constraint("Coincident", 4, 2, 5, 1),
    Sketcher.Constraint("Coincident", 5, 2, 6, 1),
    Sketcher.Constraint("Coincident", 6, 2, 7, 1),
    Sketcher.Constraint("Coincident", 7, 2, 4, 1),
    Sketcher.Constraint("Vertical", 0),
    Sketcher.Constraint("Horizontal", 1),
    Sketcher.Constraint("Vertical", 2),
    Sketcher.Constraint("Horizontal", 3),
    Sketcher.Constraint("Vertical", 4),
    Sketcher.Constraint("Horizontal", 5),
    Sketcher.Constraint("Vertical", 6),
    Sketcher.Constraint("Horizontal", 7),
    Sketcher.Constraint("Coincident", 0, 2, -1, 1),
    Sketcher.Constraint("PointOnObject", 4, 2, -1),
    Sketcher.Constraint("Horizontal", 3, 2, 6, 2),
    Sketcher.Constraint("Equal", 3, 5),
    Sketcher.Constraint("DistanceY", 0, 2, 0, 1, 10.0),
    Sketcher.Constraint("DistanceX", 1, 1, 1, 2, 16.297841),
    Sketcher.Constraint("DistanceX", -1, 1, 5, 2, 136.269009),
])
pad7 = body.newObject("PartDesign::Pad", "Pad006")
pad7.Profile = sketch8
pad7.Length = 15
pad7.Reversed = True

# Sketch on XZ plane
sketch9 = body.newObject("Sketcher::SketchObject", "Sketch008")
sketch9.AttachmentSupport = (doc.getObject("XZ_Plane"), [""])
sketch9.MapMode = "FlatFace"
sketch9.addGeometry([
    Part.LineSegment(Vector(9, 7.1, 0), Vector(9, 2.9, 0)),  # 0
    Part.LineSegment(Vector(9, 2.9, 0), Vector(15, 2.9, 0)),  # 1
    Part.LineSegment(Vector(15, 2.9, 0), Vector(15, 7.1, 0)),  # 2
    Part.LineSegment(Vector(15, 7.1, 0), Vector(9, 7.1, 0)),  # 3
    Part.LineSegment(Vector(121.3, 7.1, 0), Vector(121.3, 2.9, 0)),  # 4
    Part.LineSegment(Vector(121.3, 2.9, 0), Vector(127.3, 2.9, 0)),  # 5
    Part.LineSegment(Vector(127.3, 2.9, 0), Vector(127.3, 7.1, 0)),  # 6
    Part.LineSegment(Vector(127.3, 7.1, 0), Vector(121.3, 7.1, 0)),  # 7
], False)
sketch9.addConstraint([
    Sketcher.Constraint("Coincident", 0, 2, 1, 1),
    Sketcher.Constraint("Coincident", 1, 2, 2, 1),
    Sketcher.Constraint("Coincident", 2, 2, 3, 1),
    Sketcher.Constraint("Coincident", 3, 2, 0, 1),
    Sketcher.Constraint("Coincident", 4, 2, 5, 1),
    Sketcher.Constraint("Coincident", 5, 2, 6, 1),
    Sketcher.Constraint("Coincident", 6, 2, 7, 1),
    Sketcher.Constraint("Coincident", 7, 2, 4, 1),
    Sketcher.Constraint("Vertical", 0),
    Sketcher.Constraint("Horizontal", 1),
    Sketcher.Constraint("Vertical", 2),
    Sketcher.Constraint("Horizontal", 3),
    Sketcher.Constraint("Vertical", 4),
    Sketcher.Constraint("Horizontal", 5),
    Sketcher.Constraint("Vertical", 6),
    Sketcher.Constraint("Horizontal", 7),
    Sketcher.Constraint("Horizontal", 1, 2, 4, 2),
    Sketcher.Constraint("Horizontal", 3, 2, 6, 2),
    Sketcher.Constraint("Equal", 3, 5),
    Sketcher.Constraint("DistanceX", 1, 1, 1, 2, 6.0),
    Sketcher.Constraint("DistanceY", 0, 2, 0, 1, 4.2),
    Sketcher.Constraint("DistanceX", -1, 1, 0, 2, 9.0),
    Sketcher.Constraint("DistanceY", -1, 1, 0, 2, 2.9),
    Sketcher.Constraint("DistanceX", -1, 1, 4, 2, 121.269009),
])
pocket2 = body.newObject("PartDesign::Pocket", "Pocket001")
pocket2.Profile = sketch9
pocket2.Length = 8

# Sketch on YZ plane
sketch10 = body.newObject("Sketcher::SketchObject", "Sketch009")
sketch10.AttachmentSupport = (doc.getObject("YZ_Plane"), [""])
sketch10.MapMode = "FlatFace"
sketch10.AttachmentOffset = App.Placement(Vector(0, 0, 119.971167), App.Rotation())
sketch10.addGeometry([
    Part.LineSegment(Vector(15, 0, 0), Vector(14.86, 0, 0)),
    Part.LineSegment(Vector(14.86, 0, 0), Vector(14.86, 10, 0)),
    Part.LineSegment(Vector(14.86, 10, 0), Vector(15, 10, 0)),
    Part.LineSegment(Vector(15, 10, 0), Vector(15, 0, 0)),
], False)
sketch10.addConstraint([
    Sketcher.Constraint("Coincident", 0, 2, 1, 1),
    Sketcher.Constraint("Coincident", 1, 2, 2, 1),
    Sketcher.Constraint("Coincident", 2, 2, 3, 1),
    Sketcher.Constraint("Coincident", 3, 2, 0, 1),
    Sketcher.Constraint("Horizontal", 0),
    Sketcher.Constraint("Vertical", 1),
    Sketcher.Constraint("Horizontal", 2),
    Sketcher.Constraint("Vertical", 3),
    Sketcher.Constraint("PointOnObject", 0, 2, -1),
    Sketcher.Constraint("DistanceY", 1, 1, 1, 2, 10.0),
    Sketcher.Constraint("DistanceX", -1, 1, 2, 2, 15.0),
    Sketcher.Constraint("DistanceX", 0, 2, 0, 1, 0.143122),
])
pocket3 = body.newObject("PartDesign::Pocket", "Pocket002")
pocket3.Profile = sketch10
pocket3.Length = 16.297841
pocket3.Reversed = True

# Sketch on XY plane
sketch11 = body.newObject("Sketcher::SketchObject", "Sketch010")
sketch11.AttachmentSupport = (doc.getObject("XY_Plane"), [""])
sketch11.MapMode = "FlatFace"
sketch11.addGeometry([
    Part.Circle(Vector(116.2, 7.4, 0), Vector(0, 0, 1), 3),
    Part.Circle(Vector(19.9, 7.4, 0), Vector(0, 0, 1), 3),
], False)
sketch11.addConstraint([
    Sketcher.Constraint("Equal", 0, 1),
    Sketcher.Constraint("Horizontal", 0, 3, 1, 3),
    Sketcher.Constraint("Diameter", 0, 6.0),
    Sketcher.Constraint("DistanceY", -1, 1, 0, 3, 7.428439),
    Sketcher.Constraint("DistanceX", 1, 3, 0, 3, 96.269009),
    Sketcher.Constraint("DistanceX", -1, 1, 0, 3, 116.201757),
])
pocket4 = body.newObject("PartDesign::Pocket", "Pocket003")
pocket4.Profile = sketch11
pocket4.Length = 3
pocket4.Reversed = True

doc.recompute()
